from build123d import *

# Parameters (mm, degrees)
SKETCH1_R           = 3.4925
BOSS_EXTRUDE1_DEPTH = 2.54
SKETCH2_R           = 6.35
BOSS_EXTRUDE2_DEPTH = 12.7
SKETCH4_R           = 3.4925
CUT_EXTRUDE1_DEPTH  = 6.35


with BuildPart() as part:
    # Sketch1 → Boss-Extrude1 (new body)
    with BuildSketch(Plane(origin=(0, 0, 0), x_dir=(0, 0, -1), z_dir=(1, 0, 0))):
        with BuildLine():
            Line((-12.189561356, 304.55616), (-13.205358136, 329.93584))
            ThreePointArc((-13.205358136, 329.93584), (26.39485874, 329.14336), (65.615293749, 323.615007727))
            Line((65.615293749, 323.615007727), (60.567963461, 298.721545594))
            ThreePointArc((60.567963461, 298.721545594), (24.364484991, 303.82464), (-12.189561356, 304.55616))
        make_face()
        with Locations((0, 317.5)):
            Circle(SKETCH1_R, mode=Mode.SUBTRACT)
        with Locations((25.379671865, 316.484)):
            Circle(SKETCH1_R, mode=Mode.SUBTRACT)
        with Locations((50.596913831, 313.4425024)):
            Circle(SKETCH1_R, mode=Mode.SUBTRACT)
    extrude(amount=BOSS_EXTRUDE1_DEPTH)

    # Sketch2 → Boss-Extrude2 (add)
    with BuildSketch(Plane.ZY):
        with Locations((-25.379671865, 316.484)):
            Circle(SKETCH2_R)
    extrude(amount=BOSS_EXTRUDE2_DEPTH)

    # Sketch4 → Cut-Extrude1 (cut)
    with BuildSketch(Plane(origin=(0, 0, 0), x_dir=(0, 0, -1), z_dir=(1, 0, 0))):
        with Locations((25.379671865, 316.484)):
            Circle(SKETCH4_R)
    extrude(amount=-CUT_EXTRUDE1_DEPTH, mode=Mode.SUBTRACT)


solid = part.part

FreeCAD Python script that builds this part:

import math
import FreeCAD as App
import Part
import Sketcher
Q = App.Units.Quantity

doc = App.newDocument("Part")
body = doc.addObject("PartDesign::Body", "Body")

sketch1 = doc.addObject("Sketcher::SketchObject", "Sketch")
body.addObject(sketch1)
sketch1.AttachmentSupport = (doc.YZ_Plane, [""])
sketch1.MapMode = "FlatFace"
sketch1.addGeometry([
    Part.LineSegment(App.Vector(329.93584, 13.205358, 0), App.Vector(304.55616, 12.189561, 0)),
    Part.ArcOfCircle(Part.Circle(App.Vector(0, 0, 0), App.Vector(0, 0, 1), 304.8), math.radians(-11.461755), math.radians(2.291984)),
    Part.LineSegment(App.Vector(298.721546, -60.567963, 0), App.Vector(323.615008, -65.615294, 0)),
    Part.ArcOfCircle(Part.Circle(App.Vector(0, 0, 0), App.Vector(0, 0, 1), 330.2), math.radians(-11.461755), math.radians(2.291984)),
    Part.Circle(App.Vector(313.442502, -50.596914, 0), App.Vector(0, 0, 1), 3.4925),
    Part.Circle(App.Vector(316.484, -25.379672, 0), App.Vector(0, 0, 1), 3.4925),
    Part.Circle(App.Vector(317.5, 0, 0), App.Vector(0, 0, 1), 3.4925),
], False)
sketch1.addConstraint([
    Sketcher.Constraint("Coincident", 0, 2, 1, 2),
    Sketcher.Constraint("Coincident", 1, 1, 2, 1),
    Sketcher.Constraint("Coincident", 2, 2, 3, 1),
    Sketcher.Constraint("Coincident", 3, 2, 0, 1),
    Sketcher.Constraint("Coincident", 1, 3, -1, 1),
    Sketcher.Constraint("Coincident", 3, 3, -1, 1),
    Sketcher.Constraint("Equal", 4, 5),
    Sketcher.Constraint("Equal", 5, 6),
    Sketcher.Constraint("PointOnObject", 6, 3, -1),
    Sketcher.Constraint("Radius", 1, Q("12 in")),
    Sketcher.Constraint("Radius", 3, Q("13 in")),
    Sketcher.Constraint("Diameter", 4, Q("0.275 in")),
    Sketcher.Constraint("DistanceX", -1, 1, 6, 3, Q("12.5 in")),
    Sketcher.Constraint("DistanceX", -1, 1, 5, 3, Q("12.46 in")),
    Sketcher.Constraint("DistanceX", -1, 1, 0, 2, Q("11.9904 in")),
    Sketcher.Constraint("DistanceX", -1, 1, 3, 2, Q("12.9896 in")),
    Sketcher.Constraint("DistanceY", 5, 3, -1, 1, Q("25.379672 mm")),
    Sketcher.Constraint("DistanceY", 4, 3, 5, 3, Q("25.217242 mm")),
    Sketcher.Constraint("DistanceY", 1, 1, 4, 3, Q("9.97105 mm")),
    Sketcher.Constraint("DistanceY", 2, 2, 4, 3, Q("15.01838 mm")),
    Sketcher.Constraint("DistanceX", -1, 1, 4, 3, Q("313.442502 mm")),
])
pad1 = doc.addObject("PartDesign::Pad", "Pad")
body.addObject(pad1)
pad1.Profile = sketch1
pad1.Length = Q("0.1 in")

sketch2 = doc.addObject("Sketcher::SketchObject", "Sketch001")
body.addObject(sketch2)
sketch2.AttachmentSupport = (doc.YZ_Plane, [""])
sketch2.MapMode = "FlatFace"
sketch2.addGeometry(Part.Circle(App.Vector(316.484, -25.379672, 0), App.Vector(0, 0, 1), 6.35), False)
sketch2.addConstraint([
    Sketcher.Constraint("Diameter", 0, Q("0.5 in")),
    Sketcher.Constraint("DistanceX", -1, 1, 0, 3, Q("12.46 in")),
    Sketcher.Constraint("DistanceY", 0, 3, -1, 1, Q("25.379672 mm")),
])
pad2 = doc.addObject("PartDesign::Pad", "Pad001")
body.addObject(pad2)
pad2.Profile = sketch2
pad2.Length = Q("0.5 in")
pad2.Reversed = True

sketch3 = doc.addObject("Sketcher::SketchObject", "Sketch002")
body.addObject(sketch3)
sketch3.AttachmentSupport = (doc.YZ_Plane, [""])
sketch3.MapMode = "FlatFace"
sketch3.addGeometry(Part.Circle(App.Vector(316.484, -25.379672, 0), App.Vector(0, 0, 1), 3.4925), False)
sketch3.addConstraint([
    Sketcher.Constraint("Diameter", 0, Q("0.275 in")),
    Sketcher.Constraint("DistanceX", -1, 1, 0, 3, Q("12.46 in")),
    Sketcher.Constraint("DistanceY", 0, 3, -1, 1, Q("25.379672 mm")),
])
pocket1 = doc.addObject("PartDesign::Pocket", "Pocket")
body.addObject(pocket1)
pocket1.Profile = sketch3
pocket1.Length = Q("0.25 in")

doc.recompute()
